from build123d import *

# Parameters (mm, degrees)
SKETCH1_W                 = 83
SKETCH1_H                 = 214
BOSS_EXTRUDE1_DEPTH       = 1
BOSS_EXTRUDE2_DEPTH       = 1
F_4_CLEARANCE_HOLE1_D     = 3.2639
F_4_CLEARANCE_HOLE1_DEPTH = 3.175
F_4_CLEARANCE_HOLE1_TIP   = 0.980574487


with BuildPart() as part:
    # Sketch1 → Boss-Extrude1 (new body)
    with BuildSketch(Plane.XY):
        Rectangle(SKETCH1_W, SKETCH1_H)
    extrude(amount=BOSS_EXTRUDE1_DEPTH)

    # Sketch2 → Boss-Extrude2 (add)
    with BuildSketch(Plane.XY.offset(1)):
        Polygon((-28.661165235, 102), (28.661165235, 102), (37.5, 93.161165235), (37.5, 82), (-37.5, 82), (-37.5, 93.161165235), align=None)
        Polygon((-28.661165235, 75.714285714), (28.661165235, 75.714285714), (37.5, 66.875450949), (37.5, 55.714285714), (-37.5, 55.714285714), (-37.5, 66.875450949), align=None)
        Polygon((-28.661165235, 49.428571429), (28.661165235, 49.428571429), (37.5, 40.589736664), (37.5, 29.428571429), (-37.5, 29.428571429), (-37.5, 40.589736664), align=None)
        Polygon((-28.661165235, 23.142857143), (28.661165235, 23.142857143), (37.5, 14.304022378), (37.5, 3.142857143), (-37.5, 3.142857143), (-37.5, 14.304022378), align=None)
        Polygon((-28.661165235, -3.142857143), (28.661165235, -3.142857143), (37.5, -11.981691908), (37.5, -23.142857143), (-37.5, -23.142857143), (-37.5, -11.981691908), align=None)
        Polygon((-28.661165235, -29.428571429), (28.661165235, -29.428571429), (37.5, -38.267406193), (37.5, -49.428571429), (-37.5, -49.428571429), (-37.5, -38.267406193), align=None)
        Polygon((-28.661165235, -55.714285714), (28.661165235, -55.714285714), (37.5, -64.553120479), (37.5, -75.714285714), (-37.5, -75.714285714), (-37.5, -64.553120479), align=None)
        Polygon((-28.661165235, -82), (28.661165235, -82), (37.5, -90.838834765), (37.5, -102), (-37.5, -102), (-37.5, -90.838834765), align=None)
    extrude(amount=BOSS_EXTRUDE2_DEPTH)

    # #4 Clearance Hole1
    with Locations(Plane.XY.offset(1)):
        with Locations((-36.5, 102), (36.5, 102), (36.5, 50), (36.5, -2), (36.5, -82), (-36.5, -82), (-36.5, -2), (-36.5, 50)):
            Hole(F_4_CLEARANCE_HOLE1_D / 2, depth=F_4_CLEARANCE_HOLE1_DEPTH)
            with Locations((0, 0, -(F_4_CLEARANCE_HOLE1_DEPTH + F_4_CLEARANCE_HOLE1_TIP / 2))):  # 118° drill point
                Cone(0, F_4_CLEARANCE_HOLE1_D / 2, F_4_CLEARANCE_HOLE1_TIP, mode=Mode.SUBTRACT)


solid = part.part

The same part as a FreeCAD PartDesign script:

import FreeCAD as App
import Part
import Sketcher

V = App.Vector

doc = App.newDocument("Part")
body = doc.addObject("PartDesign::Body", "Body")

# Sketch on XY plane
sketch1 = body.newObject("Sketcher::SketchObject", "Sketch")
sketch1.AttachmentSupport = (doc.getObject("XY_Plane"), [""])
sketch1.MapMode = "FlatFace"
sketch1.addGeometry([
    Part.LineSegment(V(-42, 107, 0), V(-42, -107, 0)),
    Part.LineSegment(V(-42, -107, 0), V(42, -107, 0)),
    Part.LineSegment(V(42, -107, 0), V(42, 107, 0)),
    Part.LineSegment(V(42, 107, 0), V(-42, 107, 0)),
], False)
sketch1.addConstraint([
    Sketcher.Constraint("Coincident", 0, 2, 1, 1),
    Sketcher.Constraint("Coincident", 1, 2, 2, 1),
    Sketcher.Constraint("Coincident", 2, 2, 3, 1),
    Sketcher.Constraint("Coincident", 3, 2, 0, 1),
    Sketcher.Constraint("Vertical", 0),
    Sketcher.Constraint("Horizontal", 1),
    Sketcher.Constraint("Vertical", 2),
    Sketcher.Constraint("Horizontal", 3),
    Sketcher.Constraint("Symmetric", 0, 2, 2, 2, -1, 1),
    Sketcher.Constraint("DistanceX", 1, 1, 1, 2, 83.0),
    Sketcher.Constraint("DistanceY", 0, 2, 0, 1, 214.0),
])
pad1 = body.newObject("PartDesign::Pad", "Pad")
pad1.Profile = sketch1
pad1.Length = 1

# Sketch on XY plane
sketch2 = body.newObject("Sketcher::SketchObject", "Sketch001")
sketch2.AttachmentSupport = (doc.getObject("XY_Plane"), [""])
sketch2.MapMode = "FlatFace"
sketch2.AttachmentOffset = App.Placement(V(0, 0, 1), App.Rotation())
sketch2.addGeometry([
    Part.LineSegment(V(29, 102, 0), V(-29, 102, 0)),  # 0
    Part.LineSegment(V(-29, 102, 0), V(-38, 93, 0)),  # 1
    Part.LineSegment(V(-38, 93, 0), V(-38, 82, 0)),  # 2
    Part.LineSegment(V(-38, 82, 0), V(38, 82, 0)),  # 3
    Part.LineSegment(V(38, 82, 0), V(38, 93, 0)),  # 4
    Part.LineSegment(V(38, 93, 0), V(29, 102, 0)),  # 5
    Part.LineSegment(V(29, 76, 0), V(-29, 76, 0)),  # 6
    Part.LineSegment(V(-29, 76, 0), V(-38, 67, 0)),  # 7
    Part.LineSegment(V(-38, 67, 0), V(-38, 56, 0)),  # 8
    Part.LineSegment(V(-38, 56, 0), V(38, 56, 0)),  # 9
    Part.LineSegment(V(38, 56, 0), V(38, 67, 0)),  # 10
    Part.LineSegment(V(38, 67, 0), V(29, 76, 0)),  # 11
    Part.LineSegment(V(29, 49, 0), V(-29, 49, 0)),  # 12
    Part.LineSegment(V(-29, 49, 0), V(-38, 41, 0)),  # 13
    Part.LineSegment(V(-38, 41, 0), V(-38, 29, 0)),  # 14
    Part.LineSegment(V(-38, 29, 0), V(38, 29, 0)),  # 15
    Part.LineSegment(V(38, 29, 0), V(38, 41, 0)),  # 16
    Part.LineSegment(V(38, 41, 0), V(29, 49, 0)),  # 17
    Part.LineSegment(V(29, 23, 0), V(-29, 23, 0)),  # 18
    Part.LineSegment(V(-29, 23, 0), V(-38, 14, 0)),  # 19
    Part.LineSegment(V(-38, 14, 0), V(-38, 3, 0)),  # 20
    Part.LineSegment(V(-38, 3, 0), V(38, 3, 0)),  # 21
    Part.LineSegment(V(38, 3, 0), V(38, 14, 0)),  # 22
    Part.LineSegment(V(38, 14, 0), V(29, 23, 0)),  # 23
    Part.LineSegment(V(29, -3, 0), V(-29, -3, 0)),  # 24
    Part.LineSegment(V(-29, -3, 0), V(-38, -12, 0)),  # 25
    Part.LineSegment(V(-38, -12, 0), V(-38, -23, 0)),  # 26
    Part.LineSegment(V(-38, -23, 0), V(38, -23, 0)),  # 27
    Part.LineSegment(V(38, -23, 0), V(38, -12, 0)),  # 28
    Part.LineSegment(V(38, -12, 0), V(29, -3, 0)),  # 29
    Part.LineSegment(V(29, -29, 0), V(-29, -29, 0)),  # 30
    Part.LineSegment(V(-29, -29, 0), V(-38, -38, 0)),  # 31
    Part.LineSegment(V(-38, -38, 0), V(-38, -49, 0)),  # 32
    Part.LineSegment(V(-38, -49, 0), V(38, -49, 0)),  # 33
    Part.LineSegment(V(38, -49, 0), V(38, -38, 0)),  # 34
    Part.LineSegment(V(38, -38, 0), V(29, -29, 0)),  # 35
    Part.LineSegment(V(29, -56, 0), V(-29, -56, 0)),  # 36
    Part.LineSegment(V(-29, -56, 0), V(-38, -65, 0)),  # 37
    Part.LineSegment(V(-38, -65, 0), V(-38, -76, 0)),  # 38
    Part.LineSegment(V(-38, -76, 0), V(38, -76, 0)),  # 39
    Part.LineSegment(V(38, -76, 0), V(38, -65, 0)),  # 40
    Part.LineSegment(V(38, -65, 0), V(29, -56, 0)),  # 41
    Part.LineSegment(V(29, -82, 0), V(-29, -82, 0)),  # 42
    Part.LineSegment(V(-29, -82, 0), V(-38, -91, 0)),  # 43
    Part.LineSegment(V(-38, -91, 0), V(-38, -102, 0)),  # 44
    Part.LineSegment(V(-38, -102, 0), V(38, -102, 0)),  # 45
    Part.LineSegment(V(38, -102, 0), V(38, -91, 0)),  # 46
    Part.LineSegment(V(38, -91, 0), V(29, -82, 0)),  # 47
], False)
sketch2.addConstraint([
    Sketcher.Constraint("Coincident", 0, 2, 1, 1),
    Sketcher.Constraint("Coincident", 1, 2, 2, 1),
    Sketcher.Constraint("Coincident", 2, 2, 3, 1),
    Sketcher.Constraint("Coincident", 3, 2, 4, 1),
    Sketcher.Constraint("Coincident", 4, 2, 5, 1),
    Sketcher.Constraint("Coincident", 5, 2, 0, 1),
    Sketcher.Constraint("Coincident", 6, 2, 7, 1),
    Sketcher.Constraint("Coincident", 7, 2, 8, 1),
    Sketcher.Constraint("Coincident", 8, 2, 9, 1),
    Sketcher.Constraint("Coincident", 9, 2, 10, 1),
    Sketcher.Constraint("Coincident", 10, 2, 11, 1),
    Sketcher.Constraint("Coincident", 11, 2, 6, 1),
    Sketcher.Constraint("Coincident", 12, 2, 13, 1),
    Sketcher.Constraint("Coincident", 13, 2, 14, 1),
    Sketcher.Constraint("Coincident", 14, 2, 15, 1),
    Sketcher.Constraint("Coincident", 15, 2, 16, 1),
    Sketcher.Constraint("Coincident", 16, 2, 17, 1),
    Sketcher.Constraint("Coincident", 17, 2, 12, 1),
    Sketcher.Constraint("Coincident", 18, 2, 19, 1),
    Sketcher.Constraint("Coincident", 19, 2, 20, 1),
    Sketcher.Constraint("Coincident", 20, 2, 21, 1),
    Sketcher.Constraint("Coincident", 21, 2, 22, 1),
    Sketcher.Constraint("Coincident", 22, 2, 23, 1),
    Sketcher.Constraint("Coincident", 23, 2, 18, 1),
    Sketcher.Constraint("Coincident", 24, 2, 25, 1),
    Sketcher.Constraint("Coincident", 25, 2, 26, 1),
    Sketcher.Constraint("Coincident", 26, 2, 27, 1),
    Sketcher.Constraint("Coincident", 27, 2, 28, 1),
    Sketcher.Constraint("Coincident", 28, 2, 29, 1),
    Sketcher.Constraint("Coincident", 29, 2, 24, 1),
    Sketcher.Constraint("Coincident", 30, 2, 31, 1),
    Sketcher.Constraint("Coincident", 31, 2, 32, 1),
    Sketcher.Constraint("Coincident", 32, 2, 33, 1),
    Sketcher.Constraint("Coincident", 33, 2, 34, 1),
    Sketcher.Constraint("Coincident", 34, 2, 35, 1),
    Sketcher.Constraint("Coincident", 35, 2, 30, 1),
    Sketcher.Constraint("Coincident", 36, 2, 37, 1),
    Sketcher.Constraint("Coincident", 37, 2, 38, 1),
    Sketcher.Constraint("Coincident", 38, 2, 39, 1),
    Sketcher.Constraint("Coincident", 39, 2, 40, 1),
    Sketcher.Constraint("Coincident", 40, 2, 41, 1),
    Sketcher.Constraint("Coincident", 41, 2, 36, 1),
    Sketcher.Constraint("Coincident", 42, 2, 43, 1),
    Sketcher.Constraint("Coincident", 43, 2, 44, 1),
    Sketcher.Constraint("Coincident", 44, 2, 45, 1),
    Sketcher.Constraint("Coincident", 45, 2, 46, 1),
    Sketcher.Constraint("Coincident", 46, 2, 47, 1),
    Sketcher.Constraint("Coincident", 47, 2, 42, 1),
    Sketcher.Constraint("Horizontal", 0),
    Sketcher.Constraint("Vertical", 2),
    Sketcher.Constraint("Horizontal", 3),
    Sketcher.Constraint("Vertical", 4),
    Sketcher.Constraint("Horizontal", 6),
    Sketcher.Constraint("Vertical", 8),
    Sketcher.Constraint("Horizontal", 9),
    Sketcher.Constraint("Vertical", 10),
    Sketcher.Constraint("Horizontal", 12),
    Sketcher.Constraint("Vertical", 14),
    Sketcher.Constraint("Horizontal", 15),
    Sketcher.Constraint("Vertical", 16),
    Sketcher.Constraint("Horizontal", 18),
    Sketcher.Constraint("Vertical", 20),
    Sketcher.Constraint("Horizontal", 21),
    Sketcher.Constraint("Vertical", 22),
    Sketcher.Constraint("Horizontal", 24),
    Sketcher.Constraint("Vertical", 26),
    Sketcher.Constraint("Horizontal", 27),
    Sketcher.Constraint("Vertical", 28),
    Sketcher.Constraint("Horizontal", 30),
    Sketcher.Constraint("Vertical", 32),
    Sketcher.Constraint("Horizontal", 33),
    Sketcher.Constraint("Vertical", 34),
    Sketcher.Constraint("Horizontal", 36),
    Sketcher.Constraint("Vertical", 38),
    Sketcher.Constraint("Horizontal", 39),
    Sketcher.Constraint("Vertical", 40),
    Sketcher.Constraint("Horizontal", 42),
    Sketcher.Constraint("Vertical", 44),
    Sketcher.Constraint("Horizontal", 45),
    Sketcher.Constraint("Vertical", 46),
    Sketcher.Constraint("Symmetric", 1, 2, 4, 2, -2),
    Sketcher.Constraint("Symmetric", 7, 2, 10, 2, -2),
    Sketcher.Constraint("Symmetric", 13, 2, 16, 2, -2),
    Sketcher.Constraint("Symmetric", 19, 2, 22, 2, -2),
    Sketcher.Constraint("Symmetric", 25, 2, 28, 2, -2),
    Sketcher.Constraint("Symmetric", 31, 2, 34, 2, -2),
    Sketcher.Constraint("Symmetric", 37, 2, 40, 2, -2),
    Sketcher.Constraint("Symmetric", 43, 2, 46, 2, -2),
    Sketcher.Constraint("Perpendicular", 1, 5),
    Sketcher.Constraint("Perpendicular", 5, 7),
    Sketcher.Constraint("Perpendicular", 7, 11),
    Sketcher.Constraint("Perpendicular", 11, 13),
    Sketcher.Constraint("Perpendicular", 13, 17),
    Sketcher.Constraint("Perpendicular", 17, 19),
    Sketcher.Constraint("Perpendicular", 19, 23),
    Sketcher.Constraint("Perpendicular", 23, 25),
    Sketcher.Constraint("Perpendicular", 25, 29),
    Sketcher.Constraint("Perpendicular", 29, 31),
    Sketcher.Constraint("Perpendicular", 31, 35),
    Sketcher.Constraint("Perpendicular", 35, 37),
    Sketcher.Constraint("Perpendicular", 37, 41),
    Sketcher.Constraint("Perpendicular", 41, 43),
    Sketcher.Constraint("Perpendicular", 43, 47),
    Sketcher.Constraint("Vertical", 0, 2, 6, 2),
    Sketcher.Constraint("Vertical", 2, 2, 7, 2),
    Sketcher.Constraint("Vertical", 6, 2, 12, 2),
    Sketcher.Constraint("Vertical", 8, 2, 13, 2),
    Sketcher.Constraint("Vertical", 12, 2, 18, 2),
    Sketcher.Constraint("Vertical", 14, 2, 19, 2),
    Sketcher.Constraint("Vertical", 18, 2, 24, 2),
    Sketcher.Constraint("Vertical", 20, 2, 25, 2),
    Sketcher.Constraint("Vertical", 24, 2, 30, 2),
    Sketcher.Constraint("Vertical", 26, 2, 31, 2),
    Sketcher.Constraint("Vertical", 30, 2, 36, 2),
    Sketcher.Constraint("Vertical", 32, 2, 37, 2),
    Sketcher.Constraint("Vertical", 36, 2, 42, 2),
    Sketcher.Constraint("Vertical", 38, 2, 43, 2),
    Sketcher.Constraint("Equal", 4, 8),
    Sketcher.Constraint("Equal", 10, 14),
    Sketcher.Constraint("Equal", 16, 20),
    Sketcher.Constraint("Equal", 22, 26),
    Sketcher.Constraint("Equal", 28, 32),
    Sketcher.Constraint("Equal", 34, 38),
    Sketcher.Constraint("Equal", 40, 44),
    Sketcher.Constraint("Equal", 1, 5),
    Sketcher.Constraint("DistanceX", 3, 1, 3, 2, 75.0),
    Sketcher.Constraint("DistanceY", -1, 1, 0, 2, 102.0),
    Sketcher.Constraint("DistanceY", -1, 1, 2, 2, 82.0),
    Sketcher.Constraint("DistanceY", 42, 2, -1, 1, 82.0),
    Sketcher.Constraint("Distance", 1, 12.5),
    Sketcher.Constraint("DistanceY", -1, 1, 7, 2, 66.875451),
    Sketcher.Constraint("DistanceY", -1, 1, 12, 2, 49.428571),
    Sketcher.Constraint("DistanceY", 25, 2, -1, 1, 11.981692),
    Sketcher.Constraint("DistanceY", 30, 2, -1, 1, 29.428571),
    Sketcher.Constraint("DistanceY", 37, 2, -1, 1, 64.55312),
    Sketcher.Constraint("DistanceY", 18, 2, 13, 2, 17.44688),
])
pad2 = body.newObject("PartDesign::Pad", "Pad001")
pad2.Profile = sketch2
pad2.Length = 1

# Sketch on XY plane
sketch3 = body.newObject("Sketcher::SketchObject", "Sketch002")
sketch3.AttachmentSupport = (doc.getObject("XY_Plane"), [""])
sketch3.MapMode = "FlatFace"
sketch3.AttachmentOffset = App.Placement(V(0, 0, 1), App.Rotation())
sketch3.addGeometry([
    Part.Circle(V(-36.5, 102, 0), V(0, 0, 1), 1.6),  # 0
    Part.Circle(V(36.5, 102, 0), V(0, 0, 1), 1.6),  # 1
    Part.Circle(V(36.5, 50, 0), V(0, 0, 1), 1.6),  # 2
    Part.Circle(V(36.5, -2, 0), V(0, 0, 1), 1.6),  # 3
    Part.Circle(V(36.5, -82, 0), V(0, 0, 1), 1.6),  # 4
    Part.Circle(V(-36.5, -82, 0), V(0, 0, 1), 1.6),  # 5
    Part.Circle(V(-36.5, -2, 0), V(0, 0, 1), 1.6),  # 6
    Part.Circle(V(-36.5, 50, 0), V(0, 0, 1), 1.6),  # 7
], False)
sketch3.addConstraint([
    Sketcher.Constraint("Equal", 0, 1),
    Sketcher.Constraint("Equal", 1, 2),
    Sketcher.Constraint("Equal", 2, 3),
    Sketcher.Constraint("Equal", 3, 4),
    Sketcher.Constraint("Equal", 4, 5),
    Sketcher.Constraint("Equal", 5, 6),
    Sketcher.Constraint("Equal", 6, 7),
    Sketcher.Constraint("Symmetric", 0, 3, 1, 3, -2),
    Sketcher.Constraint("Symmetric", 4, 3, 5, 3, -2),
    Sketcher.Constraint("Symmetric", 3, 3, 6, 3, -2),
    Sketcher.Constraint("Symmetric", 2, 3, 7, 3, -2),
    Sketcher.Constraint("Vertical", 1, 3, 2, 3),
    Sketcher.Constraint("Vertical", 2, 3, 3, 3),
    Sketcher.Constraint("Vertical", 3, 3, 4, 3),
    Sketcher.Constraint("DistanceY", -1, 1, 0, 3, 102.0),
    Sketcher.Constraint("DistanceY", -1, 1, 2, 3, 50.0),
    Sketcher.Constraint("DistanceY", 3, 3, -1, 1, 2.0),
    Sketcher.Constraint("DistanceY", 4, 3, -1, 1, 82.0),
    Sketcher.Constraint("DistanceX", 0, 3, 1, 3, 73.0),
    Sketcher.Constraint("Diameter", 0, 3.2639),
])
doc.recompute()
hole = body.newObject("PartDesign::Hole", "Hole")
hole.Profile = sketch3
hole.ThreadType = "None"
hole.Diameter = 3.2639
hole.DepthType = "Dimension"
hole.Depth = 3.175
hole.DrillPoint = "Angled"
hole.DrillPointAngle = 118

doc.recompute()
